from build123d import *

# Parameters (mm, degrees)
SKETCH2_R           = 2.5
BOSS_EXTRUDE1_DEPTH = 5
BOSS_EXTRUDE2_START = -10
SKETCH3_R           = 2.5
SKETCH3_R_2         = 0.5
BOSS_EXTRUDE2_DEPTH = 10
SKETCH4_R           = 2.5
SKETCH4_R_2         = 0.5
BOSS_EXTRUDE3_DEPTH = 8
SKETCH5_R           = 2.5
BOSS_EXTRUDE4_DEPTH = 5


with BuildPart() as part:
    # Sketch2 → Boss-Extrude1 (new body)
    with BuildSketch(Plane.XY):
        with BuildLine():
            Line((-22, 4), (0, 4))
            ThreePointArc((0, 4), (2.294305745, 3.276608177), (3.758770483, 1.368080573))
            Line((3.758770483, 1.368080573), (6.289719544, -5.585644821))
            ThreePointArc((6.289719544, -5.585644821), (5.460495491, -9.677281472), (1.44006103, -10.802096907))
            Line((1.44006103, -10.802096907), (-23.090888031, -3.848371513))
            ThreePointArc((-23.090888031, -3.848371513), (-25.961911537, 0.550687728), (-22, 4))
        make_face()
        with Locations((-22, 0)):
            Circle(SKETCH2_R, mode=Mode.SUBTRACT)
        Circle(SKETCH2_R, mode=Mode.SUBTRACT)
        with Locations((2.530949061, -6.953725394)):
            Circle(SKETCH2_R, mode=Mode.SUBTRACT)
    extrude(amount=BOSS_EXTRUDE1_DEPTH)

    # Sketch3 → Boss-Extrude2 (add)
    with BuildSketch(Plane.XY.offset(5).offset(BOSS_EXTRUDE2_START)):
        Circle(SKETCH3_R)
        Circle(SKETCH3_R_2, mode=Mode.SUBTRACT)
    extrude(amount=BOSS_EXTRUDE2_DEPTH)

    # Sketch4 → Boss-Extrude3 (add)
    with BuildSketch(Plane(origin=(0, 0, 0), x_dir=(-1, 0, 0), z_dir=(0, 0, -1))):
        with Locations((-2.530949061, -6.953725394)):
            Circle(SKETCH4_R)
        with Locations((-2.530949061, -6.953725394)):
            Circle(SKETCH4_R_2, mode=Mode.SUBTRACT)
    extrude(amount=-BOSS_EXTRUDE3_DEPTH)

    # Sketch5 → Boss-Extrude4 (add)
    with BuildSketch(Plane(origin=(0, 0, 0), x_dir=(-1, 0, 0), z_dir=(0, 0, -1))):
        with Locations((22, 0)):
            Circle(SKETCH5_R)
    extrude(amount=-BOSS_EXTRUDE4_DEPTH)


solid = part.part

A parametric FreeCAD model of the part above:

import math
import FreeCAD as App
import Part
import Sketcher

V = App.Vector
Q = App.Units.Quantity

doc = App.newDocument("Part")
body = doc.addObject("PartDesign::Body", "Body")

# Sketch on XY plane
sketch1 = doc.addObject("Sketcher::SketchObject", "Sketch")
body.addObject(sketch1)
sketch1.AttachmentSupport = (doc.XY_Plane, [""])
sketch1.MapMode = "FlatFace"
sketch1.addGeometry([
    Part.LineSegment(V(0, 4, 0), V(-22, 4, 0)),  # 0
    Part.ArcOfCircle(Part.Circle(V(-22, 0, 0), V(0, 0, 1), 4), math.radians(90), math.radians(254)),  # 1
    Part.LineSegment(V(-23.1, -3.8, 0), V(1.4, -10.8, 0)),  # 2
    Part.ArcOfCircle(Part.Circle(V(2.5, -7, 0), V(0, 0, 1), 4), math.radians(-106), math.radians(20)),  # 3
    Part.LineSegment(V(6.3, -5.6, 0), V(3.8, 1.4, 0)),  # 4
    Part.ArcOfCircle(Part.Circle(V(0, 0, 0), V(0, 0, 1), 4), math.radians(20), math.radians(90)),  # 5
    Part.Circle(V(2.5, -7, 0), V(0, 0, 1), 2.5),  # 6
    Part.Circle(V(0, 0, 0), V(0, 0, 1), 2.5),  # 7
    Part.Circle(V(-22, 0, 0), V(0, 0, 1), 2.5),  # 8
], False)
sketch1.addConstraint([
    Sketcher.Constraint("Tangent", 0, 2, 1, 1),
    Sketcher.Constraint("Tangent", 1, 2, 2, 1),
    Sketcher.Constraint("Tangent", 2, 2, 3, 1),
    Sketcher.Constraint("Tangent", 3, 2, 4, 1),
    Sketcher.Constraint("Tangent", 4, 2, 5, 1),
    Sketcher.Constraint("Tangent", 5, 2, 0, 1),
    Sketcher.Constraint("Horizontal", 0),
    Sketcher.Constraint("Coincident", 5, 3, -1, 1),
    Sketcher.Constraint("Coincident", 7, 3, -1, 1),
    Sketcher.Constraint("Coincident", 6, 3, 3, 3),
    Sketcher.Constraint("Coincident", 8, 3, 1, 3),
    Sketcher.Constraint("Equal", 1, 3),
    Sketcher.Constraint("Equal", 3, 5),
    Sketcher.Constraint("Equal", 6, 7),
    Sketcher.Constraint("Equal", 7, 8),
    Sketcher.Constraint("Diameter", 6, 5.0),
    Sketcher.Constraint("Radius", 1, 4.0),
    Sketcher.Constraint("DistanceX", 0, 2, 0, 1, 22.0),
    Sketcher.Constraint("Angle", 4, Q("110 deg")),
    Sketcher.Constraint("Distance", 4, 7.4),
])
pad1 = doc.addObject("PartDesign::Pad", "Pad")
body.addObject(pad1)
pad1.Profile = sketch1
pad1.Length = 5

# Sketch on XY plane
sketch2 = doc.addObject("Sketcher::SketchObject", "Sketch001")
body.addObject(sketch2)
sketch2.AttachmentSupport = (doc.XY_Plane, [""])
sketch2.MapMode = "FlatFace"
sketch2.AttachmentOffset = App.Placement(V(0, 0, -5), App.Rotation())
sketch2.addGeometry([
    Part.Circle(V(0, 0, 0), V(0, 0, 1), 2.5),
    Part.Circle(V(0, 0, 0), V(0, 0, 1), 0.5),
], False)
sketch2.addConstraint([
    Sketcher.Constraint("Coincident", 0, 3, -1, 1),
    Sketcher.Constraint("Coincident", 1, 3, -1, 1),
    Sketcher.Constraint("Diameter", 0, 5.0),
    Sketcher.Constraint("Diameter", 1, 1.0),
])
pad2 = doc.addObject("PartDesign::Pad", "Pad001")
body.addObject(pad2)
pad2.Profile = sketch2
pad2.Length = 10

# Sketch on XY plane
sketch3 = doc.addObject("Sketcher::SketchObject", "Sketch002")
body.addObject(sketch3)
sketch3.AttachmentSupport = (doc.XY_Plane, [""])
sketch3.MapMode = "FlatFace"
sketch3.addGeometry([
    Part.Circle(V(2.5, -7, 0), V(0, 0, 1), 2.5),
    Part.Circle(V(2.5, -7, 0), V(0, 0, 1), 0.5),
], False)
sketch3.addConstraint([
    Sketcher.Constraint("Coincident", 1, 3, 0, 3),
    Sketcher.Constraint("Diameter", 0, 5.0),
    Sketcher.Constraint("Diameter", 1, 1.0),
    Sketcher.Constraint("DistanceX", -1, 1, 0, 3, 2.530949),
    Sketcher.Constraint("DistanceY", 0, 3, -1, 1, 6.953725),
])
pad3 = doc.addObject("PartDesign::Pad", "Pad002")
body.addObject(pad3)
pad3.Profile = sketch3
pad3.Length = 8

# Sketch on XY plane
sketch4 = doc.addObject("Sketcher::SketchObject", "Sketch003")
body.addObject(sketch4)
sketch4.AttachmentSupport = (doc.XY_Plane, [""])
sketch4.MapMode = "FlatFace"
sketch4.addGeometry(Part.Circle(V(-22, 0, 0), V(0, 0, 1), 2.5), False)
sketch4.addConstraint([
    Sketcher.Constraint("PointOnObject", 0, 3, -1),
    Sketcher.Constraint("Diameter", 0, 5.0),
    Sketcher.Constraint("DistanceX", 0, 3, -1, 1, 22.0),
])
pad4 = doc.addObject("PartDesign::Pad", "Pad003")
body.addObject(pad4)
pad4.Profile = sketch4
pad4.Length = 5

doc.recompute()
